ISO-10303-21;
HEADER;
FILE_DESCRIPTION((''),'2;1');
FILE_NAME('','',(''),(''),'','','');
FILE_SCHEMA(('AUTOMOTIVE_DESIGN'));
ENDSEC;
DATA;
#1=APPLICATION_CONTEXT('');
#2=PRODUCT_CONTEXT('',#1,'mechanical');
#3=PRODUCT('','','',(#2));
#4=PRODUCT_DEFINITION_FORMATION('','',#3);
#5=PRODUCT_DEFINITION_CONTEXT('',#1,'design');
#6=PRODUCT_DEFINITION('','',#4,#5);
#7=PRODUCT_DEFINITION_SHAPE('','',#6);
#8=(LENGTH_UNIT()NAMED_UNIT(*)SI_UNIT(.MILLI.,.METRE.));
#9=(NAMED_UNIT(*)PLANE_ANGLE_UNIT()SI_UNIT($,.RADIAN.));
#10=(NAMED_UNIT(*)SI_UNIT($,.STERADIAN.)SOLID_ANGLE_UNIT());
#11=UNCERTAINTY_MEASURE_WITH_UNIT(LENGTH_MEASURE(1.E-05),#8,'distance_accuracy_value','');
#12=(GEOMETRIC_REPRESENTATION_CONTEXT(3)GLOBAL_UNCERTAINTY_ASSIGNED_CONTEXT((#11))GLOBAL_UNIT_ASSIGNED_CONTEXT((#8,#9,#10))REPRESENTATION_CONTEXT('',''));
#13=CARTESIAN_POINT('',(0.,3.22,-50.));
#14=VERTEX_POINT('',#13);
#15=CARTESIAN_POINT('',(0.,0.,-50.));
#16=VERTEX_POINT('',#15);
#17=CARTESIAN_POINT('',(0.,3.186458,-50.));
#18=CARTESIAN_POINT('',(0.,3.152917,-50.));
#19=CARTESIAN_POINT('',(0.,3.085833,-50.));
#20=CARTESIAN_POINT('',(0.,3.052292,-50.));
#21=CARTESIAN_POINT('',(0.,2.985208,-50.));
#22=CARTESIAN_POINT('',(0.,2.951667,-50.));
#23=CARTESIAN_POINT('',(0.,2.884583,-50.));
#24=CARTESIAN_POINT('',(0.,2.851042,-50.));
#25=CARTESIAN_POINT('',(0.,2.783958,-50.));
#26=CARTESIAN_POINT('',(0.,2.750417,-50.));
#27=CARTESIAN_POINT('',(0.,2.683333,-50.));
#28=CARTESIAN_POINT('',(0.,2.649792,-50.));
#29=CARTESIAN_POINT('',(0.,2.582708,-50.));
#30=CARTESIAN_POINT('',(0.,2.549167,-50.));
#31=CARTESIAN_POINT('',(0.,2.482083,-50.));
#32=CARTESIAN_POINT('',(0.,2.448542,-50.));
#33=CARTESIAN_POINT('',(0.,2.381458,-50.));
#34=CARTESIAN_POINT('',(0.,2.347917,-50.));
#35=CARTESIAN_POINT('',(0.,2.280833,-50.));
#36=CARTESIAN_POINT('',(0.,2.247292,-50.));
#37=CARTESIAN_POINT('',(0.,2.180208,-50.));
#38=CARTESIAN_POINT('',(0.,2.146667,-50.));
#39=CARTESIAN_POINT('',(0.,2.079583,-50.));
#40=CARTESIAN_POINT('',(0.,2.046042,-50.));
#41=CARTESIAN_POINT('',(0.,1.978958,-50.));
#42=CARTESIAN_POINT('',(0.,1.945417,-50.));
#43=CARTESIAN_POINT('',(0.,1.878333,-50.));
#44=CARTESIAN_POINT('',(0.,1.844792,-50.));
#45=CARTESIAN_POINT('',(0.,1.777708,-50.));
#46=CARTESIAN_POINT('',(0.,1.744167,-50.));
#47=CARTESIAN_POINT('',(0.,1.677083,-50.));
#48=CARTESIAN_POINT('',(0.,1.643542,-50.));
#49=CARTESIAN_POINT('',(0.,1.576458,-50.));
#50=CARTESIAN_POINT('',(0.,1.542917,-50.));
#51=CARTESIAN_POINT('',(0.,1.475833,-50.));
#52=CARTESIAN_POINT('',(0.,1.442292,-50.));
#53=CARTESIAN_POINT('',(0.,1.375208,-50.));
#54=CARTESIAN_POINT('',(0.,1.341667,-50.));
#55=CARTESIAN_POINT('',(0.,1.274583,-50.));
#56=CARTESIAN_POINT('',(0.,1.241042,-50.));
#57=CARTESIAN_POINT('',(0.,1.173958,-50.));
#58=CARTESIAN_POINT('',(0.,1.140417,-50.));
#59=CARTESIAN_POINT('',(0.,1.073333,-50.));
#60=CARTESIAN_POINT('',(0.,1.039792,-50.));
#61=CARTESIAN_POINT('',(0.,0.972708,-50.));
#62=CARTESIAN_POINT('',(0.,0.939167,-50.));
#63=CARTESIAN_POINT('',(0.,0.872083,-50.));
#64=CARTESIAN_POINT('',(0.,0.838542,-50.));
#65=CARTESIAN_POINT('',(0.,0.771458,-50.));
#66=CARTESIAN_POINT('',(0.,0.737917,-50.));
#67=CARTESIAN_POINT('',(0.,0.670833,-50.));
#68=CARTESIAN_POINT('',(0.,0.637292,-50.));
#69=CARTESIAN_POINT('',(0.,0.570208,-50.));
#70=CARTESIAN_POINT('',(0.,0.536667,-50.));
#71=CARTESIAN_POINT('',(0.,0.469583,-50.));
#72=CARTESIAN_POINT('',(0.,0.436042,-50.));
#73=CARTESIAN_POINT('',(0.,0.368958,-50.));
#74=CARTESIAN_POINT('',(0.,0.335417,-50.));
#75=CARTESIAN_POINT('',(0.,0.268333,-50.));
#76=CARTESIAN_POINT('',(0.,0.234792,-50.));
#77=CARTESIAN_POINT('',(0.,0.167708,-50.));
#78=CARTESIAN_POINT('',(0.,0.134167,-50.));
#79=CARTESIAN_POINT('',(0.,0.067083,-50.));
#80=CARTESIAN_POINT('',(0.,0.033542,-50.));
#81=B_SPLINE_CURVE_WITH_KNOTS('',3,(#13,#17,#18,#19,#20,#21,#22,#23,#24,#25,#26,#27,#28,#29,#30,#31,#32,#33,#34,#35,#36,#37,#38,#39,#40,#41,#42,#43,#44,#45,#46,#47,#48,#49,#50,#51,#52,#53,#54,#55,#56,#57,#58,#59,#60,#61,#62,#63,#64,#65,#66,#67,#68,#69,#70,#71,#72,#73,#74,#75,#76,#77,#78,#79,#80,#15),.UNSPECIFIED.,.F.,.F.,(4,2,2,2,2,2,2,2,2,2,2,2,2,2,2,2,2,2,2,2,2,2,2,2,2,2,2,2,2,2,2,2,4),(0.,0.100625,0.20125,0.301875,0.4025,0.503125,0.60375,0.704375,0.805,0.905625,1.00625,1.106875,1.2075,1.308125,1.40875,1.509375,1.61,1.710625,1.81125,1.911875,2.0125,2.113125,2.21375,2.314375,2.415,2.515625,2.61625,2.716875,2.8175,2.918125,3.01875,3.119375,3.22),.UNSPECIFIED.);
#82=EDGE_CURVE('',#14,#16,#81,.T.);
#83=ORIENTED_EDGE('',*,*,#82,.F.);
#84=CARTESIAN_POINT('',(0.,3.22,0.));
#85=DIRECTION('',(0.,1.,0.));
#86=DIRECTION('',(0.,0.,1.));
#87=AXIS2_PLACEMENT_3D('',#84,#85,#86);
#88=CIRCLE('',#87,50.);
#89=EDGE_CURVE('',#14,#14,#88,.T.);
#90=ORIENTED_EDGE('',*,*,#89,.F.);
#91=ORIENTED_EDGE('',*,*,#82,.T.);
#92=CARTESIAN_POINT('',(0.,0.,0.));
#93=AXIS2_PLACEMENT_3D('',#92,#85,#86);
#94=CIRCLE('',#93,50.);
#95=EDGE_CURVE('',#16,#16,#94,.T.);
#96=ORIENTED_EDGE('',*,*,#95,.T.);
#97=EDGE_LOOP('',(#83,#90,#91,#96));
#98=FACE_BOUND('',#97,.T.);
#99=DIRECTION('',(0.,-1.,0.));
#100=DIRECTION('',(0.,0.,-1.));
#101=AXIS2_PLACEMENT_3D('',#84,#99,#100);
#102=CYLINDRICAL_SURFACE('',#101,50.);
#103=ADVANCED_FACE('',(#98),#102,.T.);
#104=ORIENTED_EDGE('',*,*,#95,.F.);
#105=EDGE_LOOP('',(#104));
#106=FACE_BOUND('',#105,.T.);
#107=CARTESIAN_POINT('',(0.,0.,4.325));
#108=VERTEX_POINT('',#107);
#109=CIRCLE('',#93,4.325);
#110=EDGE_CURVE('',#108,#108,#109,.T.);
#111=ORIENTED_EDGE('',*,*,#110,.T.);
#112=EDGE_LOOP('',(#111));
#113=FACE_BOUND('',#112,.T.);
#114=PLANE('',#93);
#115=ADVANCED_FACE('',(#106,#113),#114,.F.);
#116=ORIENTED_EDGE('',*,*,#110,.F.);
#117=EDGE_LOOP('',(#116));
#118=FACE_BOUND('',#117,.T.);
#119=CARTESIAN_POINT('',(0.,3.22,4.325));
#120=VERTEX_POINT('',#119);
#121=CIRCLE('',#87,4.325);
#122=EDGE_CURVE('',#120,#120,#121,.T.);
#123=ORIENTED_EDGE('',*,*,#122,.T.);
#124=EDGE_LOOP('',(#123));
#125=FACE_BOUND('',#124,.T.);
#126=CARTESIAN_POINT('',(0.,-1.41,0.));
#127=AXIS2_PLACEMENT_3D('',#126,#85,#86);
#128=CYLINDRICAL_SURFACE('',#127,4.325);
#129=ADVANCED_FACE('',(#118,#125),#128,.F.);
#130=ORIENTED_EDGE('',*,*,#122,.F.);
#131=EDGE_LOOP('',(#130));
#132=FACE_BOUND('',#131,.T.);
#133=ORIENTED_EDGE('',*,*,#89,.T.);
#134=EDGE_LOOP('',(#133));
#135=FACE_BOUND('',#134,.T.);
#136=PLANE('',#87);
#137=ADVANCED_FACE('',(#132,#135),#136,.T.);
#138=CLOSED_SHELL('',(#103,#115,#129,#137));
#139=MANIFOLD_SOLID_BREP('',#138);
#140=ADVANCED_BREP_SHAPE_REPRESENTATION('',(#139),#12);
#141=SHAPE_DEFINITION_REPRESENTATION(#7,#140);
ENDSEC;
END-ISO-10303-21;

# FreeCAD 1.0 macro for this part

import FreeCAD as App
import Part
import Sketcher

V = App.Vector

doc = App.newDocument("Part")
body = doc.addObject("PartDesign::Body", "Body")

# Sketch on XZ plane
sketch1 = body.newObject("Sketcher::SketchObject", "Sketch")
sketch1.AttachmentSupport = (doc.getObject("XZ_Plane"), [""])
sketch1.MapMode = "FlatFace"
sketch1.addGeometry(Part.Circle(V(0, 0, 0), V(0, 0, 1), 50), False)
sketch1.addConstraint(Sketcher.Constraint("Coincident", 0, 3, -1, 1))
sketch1.addConstraint(Sketcher.Constraint("Diameter", 0, 100.0))
pad1 = body.newObject("PartDesign::Pad", "Pad")
pad1.Profile = sketch1
pad1.Length = 3.22
pad1.Reversed = True

# Sketch on XZ plane
sketch2 = body.newObject("Sketcher::SketchObject", "Sketch001")
sketch2.AttachmentSupport = (doc.getObject("XZ_Plane"), [""])
sketch2.MapMode = "FlatFace"
sketch2.AttachmentOffset = App.Placement(V(0, 0, -3.22), App.Rotation())
sketch2.addGeometry(Part.Circle(V(0, 0, 0), V(0, 0, 1), 4.325), False)
sketch2.addConstraint(Sketcher.Constraint("Coincident", 0, 3, -1, 1))
sketch2.addConstraint(Sketcher.Constraint("Diameter", 0, 8.65))
pocket1 = body.newObject("PartDesign::Pocket", "Pocket")
pocket1.Profile = sketch2
pocket1.Length = 4.63
pocket1.Reversed = True

doc.recompute()
